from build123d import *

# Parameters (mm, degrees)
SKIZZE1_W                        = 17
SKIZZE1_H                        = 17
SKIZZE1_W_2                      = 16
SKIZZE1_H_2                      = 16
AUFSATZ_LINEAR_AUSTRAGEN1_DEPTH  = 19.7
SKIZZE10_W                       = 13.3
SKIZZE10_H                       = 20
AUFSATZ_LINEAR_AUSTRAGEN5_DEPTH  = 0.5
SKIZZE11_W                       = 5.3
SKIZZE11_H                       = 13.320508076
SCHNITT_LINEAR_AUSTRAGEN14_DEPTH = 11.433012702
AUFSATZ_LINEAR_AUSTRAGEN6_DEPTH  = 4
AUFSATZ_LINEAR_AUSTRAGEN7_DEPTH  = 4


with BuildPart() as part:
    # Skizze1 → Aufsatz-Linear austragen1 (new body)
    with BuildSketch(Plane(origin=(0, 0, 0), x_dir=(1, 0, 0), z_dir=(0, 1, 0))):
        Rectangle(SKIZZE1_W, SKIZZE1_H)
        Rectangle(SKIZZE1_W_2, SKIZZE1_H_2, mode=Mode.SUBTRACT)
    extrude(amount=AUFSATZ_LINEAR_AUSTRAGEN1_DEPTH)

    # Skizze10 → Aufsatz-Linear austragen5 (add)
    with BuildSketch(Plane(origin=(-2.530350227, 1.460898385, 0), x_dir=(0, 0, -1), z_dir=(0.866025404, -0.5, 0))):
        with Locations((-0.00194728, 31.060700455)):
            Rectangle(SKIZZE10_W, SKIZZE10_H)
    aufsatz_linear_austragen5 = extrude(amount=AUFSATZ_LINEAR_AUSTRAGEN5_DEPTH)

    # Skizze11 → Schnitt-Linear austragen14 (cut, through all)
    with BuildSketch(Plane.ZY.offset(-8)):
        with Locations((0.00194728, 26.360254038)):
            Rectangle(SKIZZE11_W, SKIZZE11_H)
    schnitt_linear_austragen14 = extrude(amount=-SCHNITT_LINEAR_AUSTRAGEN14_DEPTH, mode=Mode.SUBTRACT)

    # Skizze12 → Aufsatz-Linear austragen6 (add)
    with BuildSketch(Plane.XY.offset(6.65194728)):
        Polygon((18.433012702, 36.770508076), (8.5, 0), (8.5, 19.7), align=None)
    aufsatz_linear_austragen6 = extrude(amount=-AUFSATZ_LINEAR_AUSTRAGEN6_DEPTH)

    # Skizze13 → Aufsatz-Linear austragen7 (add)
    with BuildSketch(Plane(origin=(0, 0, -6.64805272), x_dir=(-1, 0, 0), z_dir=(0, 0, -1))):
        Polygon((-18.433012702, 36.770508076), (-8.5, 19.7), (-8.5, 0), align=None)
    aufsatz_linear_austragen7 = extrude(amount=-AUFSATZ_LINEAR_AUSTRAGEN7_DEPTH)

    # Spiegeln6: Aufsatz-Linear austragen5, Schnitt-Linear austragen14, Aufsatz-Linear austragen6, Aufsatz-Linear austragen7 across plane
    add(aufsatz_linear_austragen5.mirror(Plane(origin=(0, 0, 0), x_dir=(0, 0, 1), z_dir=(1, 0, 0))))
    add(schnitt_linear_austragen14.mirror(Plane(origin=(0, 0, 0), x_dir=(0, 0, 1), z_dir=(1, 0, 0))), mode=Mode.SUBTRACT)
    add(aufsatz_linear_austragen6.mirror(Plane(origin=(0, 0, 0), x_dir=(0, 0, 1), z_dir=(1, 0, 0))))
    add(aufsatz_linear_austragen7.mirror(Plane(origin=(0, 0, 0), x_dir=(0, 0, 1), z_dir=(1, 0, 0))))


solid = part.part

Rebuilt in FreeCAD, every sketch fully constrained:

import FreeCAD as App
import Part
import Sketcher

doc = App.newDocument("Part")
body = doc.addObject("PartDesign::Body", "Body")

sketch1 = body.newObject("Sketcher::SketchObject", "Sketch")
sketch1.AttachmentSupport = (doc.getObject("XZ_Plane"), [""])
sketch1.MapMode = "FlatFace"
sketch1.addGeometry([
    Part.LineSegment(App.Vector(-8, -8, 0), App.Vector(-8, 8, 0)),
    Part.LineSegment(App.Vector(-8, 8, 0), App.Vector(8, 8, 0)),
    Part.LineSegment(App.Vector(8, 8, 0), App.Vector(8, -8, 0)),
    Part.LineSegment(App.Vector(8, -8, 0), App.Vector(-8, -8, 0)),
    Part.LineSegment(App.Vector(8, 8, 0), App.Vector(-8, 8, 0)),
    Part.LineSegment(App.Vector(-8, 8, 0), App.Vector(-8, -8, 0)),
    Part.LineSegment(App.Vector(-8, -8, 0), App.Vector(8, -8, 0)),
    Part.LineSegment(App.Vector(8, -8, 0), App.Vector(8, 8, 0)),
], False)
sketch1.addConstraint([
    Sketcher.Constraint("Coincident", 0, 2, 1, 1),
    Sketcher.Constraint("Coincident", 1, 2, 2, 1),
    Sketcher.Constraint("Coincident", 2, 2, 3, 1),
    Sketcher.Constraint("Coincident", 3, 2, 0, 1),
    Sketcher.Constraint("Coincident", 4, 2, 5, 1),
    Sketcher.Constraint("Coincident", 5, 2, 6, 1),
    Sketcher.Constraint("Coincident", 6, 2, 7, 1),
    Sketcher.Constraint("Coincident", 7, 2, 4, 1),
    Sketcher.Constraint("Vertical", 0),
    Sketcher.Constraint("Horizontal", 1),
    Sketcher.Constraint("Vertical", 2),
    Sketcher.Constraint("Horizontal", 3),
    Sketcher.Constraint("Horizontal", 4),
    Sketcher.Constraint("Vertical", 5),
    Sketcher.Constraint("Horizontal", 6),
    Sketcher.Constraint("Vertical", 7),
    Sketcher.Constraint("Symmetric", 0, 2, 2, 2, -1, 1),
    Sketcher.Constraint("Symmetric", 4, 2, 6, 2, -1, 1),
    Sketcher.Constraint("Equal", 3, 0),
    Sketcher.Constraint("Equal", 6, 5),
    Sketcher.Constraint("DistanceX", 1, 1, 1, 2, 17.0),
    Sketcher.Constraint("DistanceX", 4, 2, 4, 1, 16.0),
])
pad1 = body.newObject("PartDesign::Pad", "Pad")
pad1.Profile = sketch1
pad1.Length = 19.7
pad1.Reversed = True

sketch2 = body.newObject("Sketcher::SketchObject", "Sketch001")
sketch2.Placement = App.Placement(App.Vector(-2.53035, 1.460898, 0), App.Rotation(App.Vector(0, 0, -1), App.Vector(0.5, 0.866025404, 0), App.Vector(0.866025404, -0.5, 0), "ZXY"))
sketch2.addGeometry([
    Part.LineSegment(App.Vector(-7, 41, 0), App.Vector(-7, 21, 0)),
    Part.LineSegment(App.Vector(-7, 21, 0), App.Vector(7, 21, 0)),
    Part.LineSegment(App.Vector(7, 21, 0), App.Vector(7, 41, 0)),
    Part.LineSegment(App.Vector(7, 41, 0), App.Vector(-7, 41, 0)),
], False)
sketch2.addConstraint([
    Sketcher.Constraint("Coincident", 0, 2, 1, 1),
    Sketcher.Constraint("Coincident", 1, 2, 2, 1),
    Sketcher.Constraint("Coincident", 2, 2, 3, 1),
    Sketcher.Constraint("Coincident", 3, 2, 0, 1),
    Sketcher.Constraint("Vertical", 0),
    Sketcher.Constraint("Horizontal", 1),
    Sketcher.Constraint("Vertical", 2),
    Sketcher.Constraint("Horizontal", 3),
    Sketcher.Constraint("DistanceY", 0, 2, 0, 1, 20.0),
    Sketcher.Constraint("DistanceX", 1, 1, 1, 2, 13.3),
    Sketcher.Constraint("DistanceY", -1, 1, 0, 2, 21.0607),
    Sketcher.Constraint("DistanceX", 0, 2, -1, 1, 6.651947),
])
pad2 = body.newObject("PartDesign::Pad", "Pad001")
pad2.Profile = sketch2
pad2.Length = 0.5

sketch3 = body.newObject("Sketcher::SketchObject", "Sketch002")
sketch3.AttachmentSupport = (doc.getObject("YZ_Plane"), [""])
sketch3.MapMode = "FlatFace"
sketch3.AttachmentOffset = App.Placement(App.Vector(0, 0, 8), App.Rotation())
sketch3.addGeometry([
    Part.LineSegment(App.Vector(33, -3, 0), App.Vector(20, -3, 0)),
    Part.LineSegment(App.Vector(20, -3, 0), App.Vector(20, 3, 0)),
    Part.LineSegment(App.Vector(20, 3, 0), App.Vector(33, 3, 0)),
    Part.LineSegment(App.Vector(33, 3, 0), App.Vector(33, -3, 0)),
], False)
sketch3.addConstraint([
    Sketcher.Constraint("Coincident", 0, 2, 1, 1),
    Sketcher.Constraint("Coincident", 1, 2, 2, 1),
    Sketcher.Constraint("Coincident", 2, 2, 3, 1),
    Sketcher.Constraint("Coincident", 3, 2, 0, 1),
    Sketcher.Constraint("Horizontal", 0),
    Sketcher.Constraint("Vertical", 1),
    Sketcher.Constraint("Horizontal", 2),
    Sketcher.Constraint("Vertical", 3),
    Sketcher.Constraint("DistanceY", 1, 1, 1, 2, 5.3),
    Sketcher.Constraint("DistanceX", -1, 1, 0, 2, 19.7),
    Sketcher.Constraint("DistanceX", 0, 2, 0, 1, 13.320508),
    Sketcher.Constraint("DistanceY", 0, 2, -1, 1, 2.648053),
])
pocket1 = body.newObject("PartDesign::Pocket", "Pocket")
pocket1.Profile = sketch3
pocket1.Type = "ThroughAll"
pocket1.Reversed = True

sketch4 = body.newObject("Sketcher::SketchObject", "Sketch003")
sketch4.AttachmentSupport = (doc.getObject("XY_Plane"), [""])
sketch4.MapMode = "FlatFace"
sketch4.AttachmentOffset = App.Placement(App.Vector(0, 0, 6.651947), App.Rotation())
sketch4.addGeometry([
    Part.LineSegment(App.Vector(8, 0, 0), App.Vector(18, 37, 0)),
    Part.LineSegment(App.Vector(18, 37, 0), App.Vector(8, 20, 0)),
    Part.LineSegment(App.Vector(8, 20, 0), App.Vector(8, 0, 0)),
], False)
sketch4.addConstraint([
    Sketcher.Constraint("Coincident", 0, 2, 1, 1),
    Sketcher.Constraint("Coincident", 1, 2, 2, 1),
    Sketcher.Constraint("Coincident", 2, 2, 0, 1),
    Sketcher.Constraint("Vertical", 2),
    Sketcher.Constraint("PointOnObject", 2, 2, -1),
    Sketcher.Constraint("DistanceY", 2, 2, 2, 1, 19.7),
    Sketcher.Constraint("DistanceX", -1, 1, 1, 2, 8.5),
    Sketcher.Constraint("DistanceY", -1, 1, 0, 2, 36.770508),
    Sketcher.Constraint("Distance", 0, 38.088515),
])
pad3 = body.newObject("PartDesign::Pad", "Pad002")
pad3.Profile = sketch4
pad3.Length = 4
pad3.Reversed = True

sketch5 = body.newObject("Sketcher::SketchObject", "Sketch004")
sketch5.AttachmentSupport = (doc.getObject("XY_Plane"), [""])
sketch5.MapMode = "FlatFace"
sketch5.AttachmentOffset = App.Placement(App.Vector(0, 0, -6.648053), App.Rotation())
sketch5.addGeometry([
    Part.LineSegment(App.Vector(8, 20, 0), App.Vector(18, 37, 0)),
    Part.LineSegment(App.Vector(18, 37, 0), App.Vector(8, 0, 0)),
    Part.LineSegment(App.Vector(8, 0, 0), App.Vector(8, 20, 0)),
], False)
sketch5.addConstraint([
    Sketcher.Constraint("Coincident", 0, 2, 1, 1),
    Sketcher.Constraint("Coincident", 1, 2, 2, 1),
    Sketcher.Constraint("Coincident", 2, 2, 0, 1),
    Sketcher.Constraint("Vertical", 2),
    Sketcher.Constraint("PointOnObject", 1, 2, -1),
    Sketcher.Constraint("DistanceY", 2, 1, 2, 2, 19.7),
    Sketcher.Constraint("DistanceX", -1, 1, 1, 2, 8.5),
    Sketcher.Constraint("DistanceY", -1, 1, 0, 2, 36.770508),
    Sketcher.Constraint("Distance", 0, 19.750114),
])
pad4 = body.newObject("PartDesign::Pad", "Pad003")
pad4.Profile = sketch5
pad4.Length = 4
doc.recompute()

mirrored = body.newObject("PartDesign::Mirrored", "Mirrored")
mirrored.Originals = [pad2, pocket1, pad3, pad4]
mirrored.MirrorPlane = (doc.getObject("YZ_Plane"), [""])
body.Tip = mirrored

doc.recompute()
